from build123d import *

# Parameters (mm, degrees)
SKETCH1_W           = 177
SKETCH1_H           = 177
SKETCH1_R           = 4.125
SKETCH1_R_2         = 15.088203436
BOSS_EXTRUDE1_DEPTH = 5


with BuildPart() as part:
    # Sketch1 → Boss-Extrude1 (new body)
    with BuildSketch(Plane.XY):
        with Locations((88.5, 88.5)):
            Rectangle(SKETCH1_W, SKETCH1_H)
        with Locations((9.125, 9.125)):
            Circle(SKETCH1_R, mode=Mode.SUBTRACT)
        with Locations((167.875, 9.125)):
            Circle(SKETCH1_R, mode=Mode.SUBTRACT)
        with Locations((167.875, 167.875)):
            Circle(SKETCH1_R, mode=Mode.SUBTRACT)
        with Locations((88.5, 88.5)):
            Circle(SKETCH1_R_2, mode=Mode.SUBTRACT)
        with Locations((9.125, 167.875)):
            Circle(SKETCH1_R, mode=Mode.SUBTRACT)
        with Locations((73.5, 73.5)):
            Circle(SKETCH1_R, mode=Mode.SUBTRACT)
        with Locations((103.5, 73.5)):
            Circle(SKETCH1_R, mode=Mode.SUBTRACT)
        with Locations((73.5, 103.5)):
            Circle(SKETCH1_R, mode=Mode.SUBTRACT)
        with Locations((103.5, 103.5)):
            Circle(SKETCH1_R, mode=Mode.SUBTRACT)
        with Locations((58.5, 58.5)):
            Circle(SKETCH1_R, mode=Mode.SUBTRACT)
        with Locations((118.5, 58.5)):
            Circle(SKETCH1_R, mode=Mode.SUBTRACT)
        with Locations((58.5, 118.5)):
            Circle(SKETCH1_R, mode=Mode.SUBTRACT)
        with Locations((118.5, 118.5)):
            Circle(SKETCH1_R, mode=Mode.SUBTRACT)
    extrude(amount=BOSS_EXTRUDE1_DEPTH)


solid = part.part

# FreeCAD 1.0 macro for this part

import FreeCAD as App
import Part
import Sketcher
from FreeCAD import Vector
Q = App.Units.Quantity


def add_polygon(sketch, points):
    """Adds a closed chain of lines whose ends are joined by coincident constraints."""
    first, n = sketch.GeometryCount, len(points)
    for a, b in zip(points, points[1:] + points[:1]):
        sketch.addGeometry(Part.LineSegment(App.Vector(*a, 0), App.Vector(*b, 0)), False)
    for i in range(n):
        sketch.addConstraint(Sketcher.Constraint("Coincident", first + i, 2, first + (i + 1) % n, 1))

doc = App.newDocument("Part")
body = doc.addObject("PartDesign::Body", "Body")

# Sketch on XY plane
sketch1 = body.newObject("Sketcher::SketchObject", "Sketch")
sketch1.AttachmentSupport = (doc.getObject("XY_Plane"), [""])
sketch1.MapMode = "FlatFace"
add_polygon(sketch1, [(0, 177), (0, 0), (177, 0), (177, 177)])  # lines 0-3
sketch1.addGeometry(Part.Circle(Vector(9.125, 9.125, 0), Vector(0, 0, 1), 4.125), False)  # 4
sketch1.addGeometry(Part.Circle(Vector(58.5, 58.5, 0), Vector(0, 0, 1), 4.125), False)  # 5
sketch1.addGeometry(Part.Circle(Vector(73.5, 73.5, 0), Vector(0, 0, 1), 4.125), False)  # 6
sketch1.addGeometry(Part.Circle(Vector(167.875, 9.125, 0), Vector(0, 0, 1), 4.125), False)  # 7
sketch1.addGeometry(Part.Circle(Vector(118.5, 58.5, 0), Vector(0, 0, 1), 4.125), False)  # 8
sketch1.addGeometry(Part.Circle(Vector(103.5, 73.5, 0), Vector(0, 0, 1), 4.125), False)  # 9
sketch1.addGeometry(Part.Circle(Vector(73.5, 103.5, 0), Vector(0, 0, 1), 4.125), False)  # 10
sketch1.addGeometry(Part.Circle(Vector(58.5, 118.5, 0), Vector(0, 0, 1), 4.125), False)  # 11
sketch1.addGeometry(Part.Circle(Vector(9.125, 167.875, 0), Vector(0, 0, 1), 4.125), False)  # 12
sketch1.addGeometry(Part.Circle(Vector(88.5, 88.5, 0), Vector(0, 0, 1), 15.088203), False)  # 13
sketch1.addGeometry(Part.Circle(Vector(103.5, 103.5, 0), Vector(0, 0, 1), 4.125), False)  # 14
sketch1.addGeometry(Part.Circle(Vector(118.5, 118.5, 0), Vector(0, 0, 1), 4.125), False)  # 15
sketch1.addGeometry(Part.Circle(Vector(167.875, 167.875, 0), Vector(0, 0, 1), 4.125), False)  # 16
sketch1.addConstraint([
    Sketcher.Constraint("Vertical", 0),
    Sketcher.Constraint("Horizontal", 1),
    Sketcher.Constraint("Vertical", 2),
    Sketcher.Constraint("Horizontal", 3),
    Sketcher.Constraint("Coincident", 0, 2, -1, 1),
    Sketcher.Constraint("Equal", 4, 5),
    Sketcher.Constraint("Equal", 5, 6),
    Sketcher.Constraint("Equal", 6, 7),
    Sketcher.Constraint("Equal", 7, 8),
    Sketcher.Constraint("Equal", 8, 9),
    Sketcher.Constraint("Equal", 9, 10),
    Sketcher.Constraint("Equal", 10, 11),
    Sketcher.Constraint("Equal", 11, 12),
    Sketcher.Constraint("Equal", 12, 14),
    Sketcher.Constraint("Equal", 14, 15),
    Sketcher.Constraint("Equal", 15, 16),
    Sketcher.Constraint("Horizontal", 4, 3, 7, 3),
    Sketcher.Constraint("Horizontal", 5, 3, 8, 3),
    Sketcher.Constraint("Horizontal", 6, 3, 9, 3),
    Sketcher.Constraint("Horizontal", 10, 3, 14, 3),
    Sketcher.Constraint("Horizontal", 11, 3, 15, 3),
    Sketcher.Constraint("Horizontal", 12, 3, 16, 3),
    Sketcher.Constraint("Vertical", 6, 3, 10, 3),
    Sketcher.Constraint("Vertical", 5, 3, 11, 3),
    Sketcher.Constraint("Vertical", 4, 3, 12, 3),
    Sketcher.Constraint("Vertical", 9, 3, 14, 3),
    Sketcher.Constraint("Vertical", 8, 3, 15, 3),
    Sketcher.Constraint("Vertical", 7, 3, 16, 3),
    Sketcher.Constraint("Equal", 3, 0),
    Sketcher.Constraint("Diameter", 4, Q("8.25 mm")),
    Sketcher.Constraint("DistanceX", 1, 1, 1, 2, Q("177 mm")),
    Sketcher.Constraint("DistanceX", 5, 3, 6, 3, Q("15 mm")),
    Sketcher.Constraint("DistanceY", 5, 3, 6, 3, Q("15 mm")),
    Sketcher.Constraint("DistanceX", 6, 3, 8, 3, Q("45 mm")),
    Sketcher.Constraint("DistanceX", 9, 3, 8, 3, Q("15 mm")),
    Sketcher.Constraint("DistanceY", 6, 3, 10, 3, Q("30 mm")),
    Sketcher.Constraint("DistanceY", 10, 3, 11, 3, Q("15 mm")),
    Sketcher.Constraint("DistanceX", 6, 3, 13, 3, Q("15 mm")),
    Sketcher.Constraint("DistanceY", 6, 3, 13, 3, Q("15 mm")),
    Sketcher.Constraint("DistanceX", -1, 1, 5, 3, Q("58.5 mm")),
    Sketcher.Constraint("DistanceY", -1, 1, 5, 3, Q("58.5 mm")),
    Sketcher.Constraint("DistanceX", 4, 3, 7, 3, Q("158.75 mm")),
    Sketcher.Constraint("Diameter", 13, Q("30.176407 mm")),
    Sketcher.Constraint("DistanceX", -1, 1, 4, 3, Q("9.125 mm")),
    Sketcher.Constraint("DistanceY", -1, 1, 4, 3, Q("9.125 mm")),
    Sketcher.Constraint("DistanceY", -1, 1, 12, 3, Q("167.875 mm")),
])
pad1 = body.newObject("PartDesign::Pad", "Pad")
pad1.Profile = sketch1
pad1.Length = 5

doc.recompute()
